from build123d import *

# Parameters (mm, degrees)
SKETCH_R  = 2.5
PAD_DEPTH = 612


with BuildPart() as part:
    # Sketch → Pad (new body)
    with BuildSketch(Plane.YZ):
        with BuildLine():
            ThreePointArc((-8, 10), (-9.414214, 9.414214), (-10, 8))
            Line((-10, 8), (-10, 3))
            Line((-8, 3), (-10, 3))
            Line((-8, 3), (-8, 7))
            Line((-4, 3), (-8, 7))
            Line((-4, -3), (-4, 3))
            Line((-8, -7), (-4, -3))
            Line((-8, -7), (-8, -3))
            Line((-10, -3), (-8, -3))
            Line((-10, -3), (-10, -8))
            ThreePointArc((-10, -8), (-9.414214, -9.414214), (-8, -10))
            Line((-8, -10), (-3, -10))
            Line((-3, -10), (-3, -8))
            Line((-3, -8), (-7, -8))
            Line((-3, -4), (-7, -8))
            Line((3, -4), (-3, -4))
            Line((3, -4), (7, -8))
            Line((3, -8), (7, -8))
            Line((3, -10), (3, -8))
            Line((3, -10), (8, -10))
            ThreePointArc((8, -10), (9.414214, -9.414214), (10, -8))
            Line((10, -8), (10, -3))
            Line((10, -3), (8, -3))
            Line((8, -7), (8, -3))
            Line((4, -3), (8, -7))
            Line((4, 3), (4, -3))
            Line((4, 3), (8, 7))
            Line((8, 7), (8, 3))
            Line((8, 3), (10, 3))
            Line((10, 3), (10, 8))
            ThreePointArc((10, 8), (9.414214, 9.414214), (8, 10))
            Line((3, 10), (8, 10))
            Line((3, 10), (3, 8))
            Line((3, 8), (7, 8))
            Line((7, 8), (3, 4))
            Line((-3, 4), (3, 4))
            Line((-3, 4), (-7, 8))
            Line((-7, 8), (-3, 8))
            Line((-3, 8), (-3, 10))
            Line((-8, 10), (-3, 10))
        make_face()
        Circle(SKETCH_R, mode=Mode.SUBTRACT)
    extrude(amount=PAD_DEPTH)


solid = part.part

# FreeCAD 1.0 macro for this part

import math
import FreeCAD as App
import Part
import Sketcher

V = App.Vector
Q = App.Units.Quantity

doc = App.newDocument("Part")
params = doc.addObject("Spreadsheet::Sheet", "Params")
for row, (alias, value) in enumerate([
    ("sketch1_diameter", "5 mm"),
    ("sketch1_radius", "1.999999 mm"),
    ("sketch1_width", "5 mm"),
    ("sketch1_width2", "4 mm"),
    ("sketch1_width3", "6 mm"),
    ("pad1_length", "612 mm"),
], start=1):
    params.set(f"A{row}", alias)
    params.set(f"B{row}", "=" + value)
    params.setAlias(f"B{row}", alias)

body = doc.addObject("PartDesign::Body", "Body")

# Sketch on YZ plane
sketch1 = body.newObject("Sketcher::SketchObject", "Sketch")
sketch1.AttachmentSupport = (doc.getObject("YZ_Plane"), [""])
sketch1.MapMode = "FlatFace"
sketch1.addGeometry([
    Part.ArcOfCircle(Part.Circle(V(-8, 8, 0), V(0, 0, 1), 2), math.radians(90), math.radians(180)),  # 0
    Part.LineSegment(V(-10, 8, 0), V(-10, 3, 0)),  # 1
    Part.LineSegment(V(-10, 3, 0), V(-8, 3, 0)),  # 2
    Part.LineSegment(V(-8, 3, 0), V(-8, 7, 0)),  # 3
    Part.LineSegment(V(-8, 7, 0), V(-4, 3, 0)),  # 4
    Part.LineSegment(V(-4, 3, 0), V(-4, -3, 0)),  # 5
    Part.LineSegment(V(-4, -3, 0), V(-8, -7, 0)),  # 6
    Part.LineSegment(V(-8, -7, 0), V(-8, -3, 0)),  # 7
    Part.LineSegment(V(-8, -3, 0), V(-10, -3, 0)),  # 8
    Part.LineSegment(V(-10, -3, 0), V(-10, -8, 0)),  # 9
    Part.ArcOfCircle(Part.Circle(V(-8, -8, 0), V(0, 0, 1), 2), math.radians(180), math.radians(270)),  # 10
    Part.LineSegment(V(-8, -10, 0), V(-3, -10, 0)),  # 11
    Part.LineSegment(V(-3, -10, 0), V(-3, -8, 0)),  # 12
    Part.LineSegment(V(-3, -8, 0), V(-7, -8, 0)),  # 13
    Part.LineSegment(V(-7, -8, 0), V(-3, -4, 0)),  # 14
    Part.LineSegment(V(-3, -4, 0), V(3, -4, 0)),  # 15
    Part.LineSegment(V(3, -4, 0), V(7, -8, 0)),  # 16
    Part.LineSegment(V(7, -8, 0), V(3, -8, 0)),  # 17
    Part.LineSegment(V(3, -8, 0), V(3, -10, 0)),  # 18
    Part.LineSegment(V(3, -10, 0), V(8, -10, 0)),  # 19
    Part.ArcOfCircle(Part.Circle(V(8, -8, 0), V(0, 0, 1), 2), math.radians(-90), math.radians(0)),  # 20
    Part.LineSegment(V(10, -8, 0), V(10, -3, 0)),  # 21
    Part.LineSegment(V(10, -3, 0), V(8, -3, 0)),  # 22
    Part.LineSegment(V(8, -3, 0), V(8, -7, 0)),  # 23
    Part.LineSegment(V(8, -7, 0), V(4, -3, 0)),  # 24
    Part.LineSegment(V(4, -3, 0), V(4, 3, 0)),  # 25
    Part.LineSegment(V(4, 3, 0), V(8, 7, 0)),  # 26
    Part.LineSegment(V(8, 7, 0), V(8, 3, 0)),  # 27
    Part.LineSegment(V(8, 3, 0), V(10, 3, 0)),  # 28
    Part.LineSegment(V(10, 3, 0), V(10, 8, 0)),  # 29
    Part.ArcOfCircle(Part.Circle(V(8, 8, 0), V(0, 0, 1), 2), math.radians(0), math.radians(90)),  # 30
    Part.LineSegment(V(8, 10, 0), V(3, 10, 0)),  # 31
    Part.LineSegment(V(3, 10, 0), V(3, 8, 0)),  # 32
    Part.LineSegment(V(3, 8, 0), V(7, 8, 0)),  # 33
    Part.LineSegment(V(7, 8, 0), V(3, 4, 0)),  # 34
    Part.LineSegment(V(3, 4, 0), V(-3, 4, 0)),  # 35
    Part.LineSegment(V(-3, 4, 0), V(-7, 8, 0)),  # 36
    Part.LineSegment(V(-7, 8, 0), V(-3, 8, 0)),  # 37
    Part.LineSegment(V(-3, 8, 0), V(-3, 10, 0)),  # 38
    Part.LineSegment(V(-3, 10, 0), V(-8, 10, 0)),  # 39
    Part.Circle(V(0, 0, 0), V(0, 0, 1), 2.5),  # 40
], False)
sketch1.addConstraint([
    Sketcher.Constraint("Tangent", 0, 2, 1, 1),
    Sketcher.Constraint("Coincident", 1, 2, 2, 1),
    Sketcher.Constraint("Coincident", 2, 2, 3, 1),
    Sketcher.Constraint("Coincident", 3, 2, 4, 1),
    Sketcher.Constraint("Coincident", 4, 2, 5, 1),
    Sketcher.Constraint("Coincident", 5, 2, 6, 1),
    Sketcher.Constraint("Coincident", 6, 2, 7, 1),
    Sketcher.Constraint("Coincident", 7, 2, 8, 1),
    Sketcher.Constraint("Coincident", 8, 2, 9, 1),
    Sketcher.Constraint("Tangent", 9, 2, 10, 1),
    Sketcher.Constraint("Tangent", 10, 2, 11, 1),
    Sketcher.Constraint("Coincident", 11, 2, 12, 1),
    Sketcher.Constraint("Coincident", 12, 2, 13, 1),
    Sketcher.Constraint("Coincident", 13, 2, 14, 1),
    Sketcher.Constraint("Coincident", 14, 2, 15, 1),
    Sketcher.Constraint("Coincident", 15, 2, 16, 1),
    Sketcher.Constraint("Coincident", 16, 2, 17, 1),
    Sketcher.Constraint("Coincident", 17, 2, 18, 1),
    Sketcher.Constraint("Coincident", 18, 2, 19, 1),
    Sketcher.Constraint("Tangent", 19, 2, 20, 1),
    Sketcher.Constraint("Tangent", 20, 2, 21, 1),
    Sketcher.Constraint("Coincident", 21, 2, 22, 1),
    Sketcher.Constraint("Coincident", 22, 2, 23, 1),
    Sketcher.Constraint("Coincident", 23, 2, 24, 1),
    Sketcher.Constraint("Coincident", 24, 2, 25, 1),
    Sketcher.Constraint("Coincident", 25, 2, 26, 1),
    Sketcher.Constraint("Coincident", 26, 2, 27, 1),
    Sketcher.Constraint("Coincident", 27, 2, 28, 1),
    Sketcher.Constraint("Coincident", 28, 2, 29, 1),
    Sketcher.Constraint("Tangent", 29, 2, 30, 1),
    Sketcher.Constraint("Tangent", 30, 2, 31, 1),
    Sketcher.Constraint("Coincident", 31, 2, 32, 1),
    Sketcher.Constraint("Coincident", 32, 2, 33, 1),
    Sketcher.Constraint("Coincident", 33, 2, 34, 1),
    Sketcher.Constraint("Coincident", 34, 2, 35, 1),
    Sketcher.Constraint("Coincident", 35, 2, 36, 1),
    Sketcher.Constraint("Coincident", 36, 2, 37, 1),
    Sketcher.Constraint("Coincident", 37, 2, 38, 1),
    Sketcher.Constraint("Coincident", 38, 2, 39, 1),
    Sketcher.Constraint("Tangent", 39, 2, 0, 1),
    Sketcher.Constraint("Vertical", 1),
    Sketcher.Constraint("Horizontal", 2),
    Sketcher.Constraint("Vertical", 3),
    Sketcher.Constraint("Vertical", 5),
    Sketcher.Constraint("Vertical", 7),
    Sketcher.Constraint("Horizontal", 8),
    Sketcher.Constraint("Vertical", 9),
    Sketcher.Constraint("Horizontal", 11),
    Sketcher.Constraint("Vertical", 12),
    Sketcher.Constraint("Horizontal", 13),
    Sketcher.Constraint("Horizontal", 15),
    Sketcher.Constraint("Horizontal", 17),
    Sketcher.Constraint("Vertical", 18),
    Sketcher.Constraint("Horizontal", 19),
    Sketcher.Constraint("Vertical", 21),
    Sketcher.Constraint("Horizontal", 22),
    Sketcher.Constraint("Vertical", 23),
    Sketcher.Constraint("Vertical", 25),
    Sketcher.Constraint("Vertical", 27),
    Sketcher.Constraint("Horizontal", 28),
    Sketcher.Constraint("Vertical", 29),
    Sketcher.Constraint("Horizontal", 31),
    Sketcher.Constraint("Vertical", 32),
    Sketcher.Constraint("Horizontal", 33),
    Sketcher.Constraint("Horizontal", 35),
    Sketcher.Constraint("Horizontal", 37),
    Sketcher.Constraint("Vertical", 38),
    Sketcher.Constraint("Horizontal", 39),
    Sketcher.Constraint("Coincident", 40, 3, -1, 1),
    Sketcher.Constraint("Equal", 0, 10),
    Sketcher.Constraint("Equal", 10, 20),
    Sketcher.Constraint("Equal", 20, 30),
    Sketcher.Constraint("Symmetric", 0, 3, 20, 3, -1, 1),
    Sketcher.Constraint("Symmetric", 10, 3, 30, 3, -1, 1),
    Sketcher.Constraint("Symmetric", 2, 2, 22, 2, -1, 1),
    Sketcher.Constraint("Symmetric", 4, 2, 24, 2, -1, 1),
    Sketcher.Constraint("Symmetric", 6, 2, 26, 2, -1, 1),
    Sketcher.Constraint("Symmetric", 12, 2, 32, 2, -1, 1),
    Sketcher.Constraint("Symmetric", 14, 2, 34, 2, -1, 1),
    Sketcher.Constraint("Symmetric", 16, 2, 36, 2, -1, 1),
    Sketcher.Constraint("Symmetric", 10, 3, 20, 3, -2),
    Sketcher.Constraint("Symmetric", 13, 2, 16, 2, -2),
    Sketcher.Constraint("Symmetric", 7, 2, 22, 2, -2),
    Sketcher.Constraint("Perpendicular", 4, 6),
    Sketcher.Constraint("Parallel", 6, 14),
    Sketcher.Constraint("Perpendicular", 14, 16),
    Sketcher.Constraint("Parallel", 16, 24),
    Sketcher.Constraint("Perpendicular", 24, 26),
    Sketcher.Constraint("Parallel", 26, 34),
    Sketcher.Constraint("Perpendicular", 34, 36),
    Sketcher.Constraint("Horizontal", 2, 2, 4, 2),
    Sketcher.Constraint("Horizontal", 5, 2, 7, 2),
    Sketcher.Constraint("Horizontal", 9, 2, 12, 2),
    Sketcher.Constraint("Horizontal", 6, 2, 23, 2),
    Sketcher.Constraint("Horizontal", 25, 2, 27, 2),
    Sketcher.Constraint("Vertical", 10, 3, 2, 2),
    Sketcher.Constraint("Vertical", 12, 2, 14, 2),
    Sketcher.Constraint("Vertical", 15, 2, 17, 2),
    Sketcher.Constraint("Vertical", 35, 2, 37, 2),
    Sketcher.Constraint("Equal", 39, 1),
    Sketcher.Constraint("Equal", 37, 3),
    Sketcher.Constraint("Equal", 35, 5),
    Sketcher.Constraint("Diameter", 40, Q("5 mm")),
    Sketcher.Constraint("Radius", 0, Q("1.999999 mm")),
    Sketcher.Constraint("DistanceX", 11, 1, 11, 2, Q("5 mm")),
    Sketcher.Constraint("DistanceX", 13, 2, 13, 1, Q("4 mm")),
    Sketcher.Constraint("DistanceX", 15, 1, 15, 2, Q("6 mm")),
])
sketch1.setExpression("Constraints[102]", "Params.sketch1_diameter")
sketch1.setExpression("Constraints[103]", "Params.sketch1_radius")
sketch1.setExpression("Constraints[104]", "Params.sketch1_width")
sketch1.setExpression("Constraints[105]", "Params.sketch1_width2")
sketch1.setExpression("Constraints[106]", "Params.sketch1_width3")
pad1 = body.newObject("PartDesign::Pad", "Pad")
pad1.Profile = sketch1
pad1.setExpression("Length", "Params.pad1_length")

doc.recompute()
